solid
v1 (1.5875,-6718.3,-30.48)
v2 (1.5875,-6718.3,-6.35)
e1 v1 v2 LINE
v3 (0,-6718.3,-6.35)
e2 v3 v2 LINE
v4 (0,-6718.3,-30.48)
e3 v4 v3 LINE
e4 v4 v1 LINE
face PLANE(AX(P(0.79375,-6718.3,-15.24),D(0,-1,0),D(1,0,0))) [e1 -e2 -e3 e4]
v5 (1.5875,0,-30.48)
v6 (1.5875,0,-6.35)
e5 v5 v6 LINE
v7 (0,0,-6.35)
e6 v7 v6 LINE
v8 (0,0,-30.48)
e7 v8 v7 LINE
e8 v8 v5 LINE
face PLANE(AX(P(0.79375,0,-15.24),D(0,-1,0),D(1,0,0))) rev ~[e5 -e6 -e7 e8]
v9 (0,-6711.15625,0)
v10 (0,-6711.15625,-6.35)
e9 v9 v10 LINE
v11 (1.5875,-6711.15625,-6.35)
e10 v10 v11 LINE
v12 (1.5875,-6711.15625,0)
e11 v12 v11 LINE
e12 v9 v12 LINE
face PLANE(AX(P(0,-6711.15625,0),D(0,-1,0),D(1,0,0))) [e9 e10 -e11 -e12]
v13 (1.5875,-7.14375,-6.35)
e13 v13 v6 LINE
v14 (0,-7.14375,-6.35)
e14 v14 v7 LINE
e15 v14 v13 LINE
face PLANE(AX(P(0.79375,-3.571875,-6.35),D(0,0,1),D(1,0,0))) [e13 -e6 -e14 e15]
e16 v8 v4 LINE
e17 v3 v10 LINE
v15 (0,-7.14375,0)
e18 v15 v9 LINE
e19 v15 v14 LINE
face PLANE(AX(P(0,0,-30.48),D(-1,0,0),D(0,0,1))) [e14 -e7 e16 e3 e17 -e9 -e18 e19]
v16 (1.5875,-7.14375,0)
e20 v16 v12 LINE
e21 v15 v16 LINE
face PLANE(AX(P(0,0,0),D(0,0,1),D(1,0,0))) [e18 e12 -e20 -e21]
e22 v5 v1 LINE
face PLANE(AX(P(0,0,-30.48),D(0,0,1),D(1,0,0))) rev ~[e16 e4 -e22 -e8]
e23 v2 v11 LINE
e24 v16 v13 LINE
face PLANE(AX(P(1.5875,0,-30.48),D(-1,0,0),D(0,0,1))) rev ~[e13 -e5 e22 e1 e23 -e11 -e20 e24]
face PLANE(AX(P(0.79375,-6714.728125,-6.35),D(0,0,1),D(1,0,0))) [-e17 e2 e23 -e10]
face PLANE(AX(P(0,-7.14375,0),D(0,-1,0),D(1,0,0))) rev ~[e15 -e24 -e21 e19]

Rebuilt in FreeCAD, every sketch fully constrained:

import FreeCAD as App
import Part
import Sketcher

V = App.Vector
Q = App.Units.Quantity

doc = App.newDocument("Part")
body = doc.addObject("PartDesign::Body", "Body")

# Sketch on XZ plane
sketch1 = body.newObject("Sketcher::SketchObject", "Sketch")
sketch1.AttachmentSupport = (doc.getObject("XZ_Plane"), [""])
sketch1.MapMode = "FlatFace"
sketch1.addGeometry(Part.LineSegment(V(0, 0, 0), V(0, -30.48, 0)), False)
sketch1.addGeometry(Part.LineSegment(V(0, -30.48, 0), V(1.5875, -30.48, 0)), False)
sketch1.addGeometry(Part.LineSegment(V(1.5875, -30.48, 0), V(1.5875, 0, 0)), False)
sketch1.addGeometry(Part.LineSegment(V(1.5875, 0, 0), V(0, 0, 0)), False)
sketch1.addConstraint(Sketcher.Constraint("Coincident", 0, 2, 1, 1))
sketch1.addConstraint(Sketcher.Constraint("Coincident", 1, 2, 2, 1))
sketch1.addConstraint(Sketcher.Constraint("Coincident", 2, 2, 3, 1))
sketch1.addConstraint(Sketcher.Constraint("Coincident", 3, 2, 0, 1))
sketch1.addConstraint(Sketcher.Constraint("Vertical", 0))
sketch1.addConstraint(Sketcher.Constraint("Horizontal", 1))
sketch1.addConstraint(Sketcher.Constraint("Vertical", 2))
sketch1.addConstraint(Sketcher.Constraint("Horizontal", 3))
sketch1.addConstraint(Sketcher.Constraint("Coincident", 3, 2, -1, 1))
sketch1.addConstraint(Sketcher.Constraint("DistanceY", 0, 2, 0, 1, Q("1.2 in")))
sketch1.addConstraint(Sketcher.Constraint("DistanceX", 1, 1, 1, 2, Q("0.0625 in")))
pad1 = body.newObject("PartDesign::Pad", "Pad")
pad1.Profile = sketch1
pad1.Length = Q("264.5 in")

# Sketch on XY plane
sketch2 = body.newObject("Sketcher::SketchObject", "Sketch001")
sketch2.AttachmentSupport = (doc.getObject("XY_Plane"), [""])
sketch2.MapMode = "FlatFace"
sketch2.addGeometry(Part.LineSegment(V(0, -6711.15625, 0), V(0, -6718.3, 0)), False)
sketch2.addGeometry(Part.LineSegment(V(0, -6718.3, 0), V(1.5875, -6718.3, 0)), False)
sketch2.addGeometry(Part.LineSegment(V(1.5875, -6718.3, 0), V(1.5875, -6711.15625, 0)), False)
sketch2.addGeometry(Part.LineSegment(V(1.5875, -6711.15625, 0), V(0, -6711.15625, 0)), False)
sketch2.addGeometry(Part.LineSegment(V(0, 0, 0), V(0, -7.14375, 0)), False)
sketch2.addGeometry(Part.LineSegment(V(0, -7.14375, 0), V(1.5875, -7.14375, 0)), False)
sketch2.addGeometry(Part.LineSegment(V(1.5875, -7.14375, 0), V(1.5875, 0, 0)), False)
sketch2.addGeometry(Part.LineSegment(V(1.5875, 0, 0), V(0, 0, 0)), False)
sketch2.addConstraint(Sketcher.Constraint("Coincident", 0, 2, 1, 1))
sketch2.addConstraint(Sketcher.Constraint("Coincident", 1, 2, 2, 1))
sketch2.addConstraint(Sketcher.Constraint("Coincident", 2, 2, 3, 1))
sketch2.addConstraint(Sketcher.Constraint("Coincident", 3, 2, 0, 1))
sketch2.addConstraint(Sketcher.Constraint("Coincident", 4, 2, 5, 1))
sketch2.addConstraint(Sketcher.Constraint("Coincident", 5, 2, 6, 1))
sketch2.addConstraint(Sketcher.Constraint("Coincident", 6, 2, 7, 1))
sketch2.addConstraint(Sketcher.Constraint("Coincident", 7, 2, 4, 1))
sketch2.addConstraint(Sketcher.Constraint("Vertical", 0))
sketch2.addConstraint(Sketcher.Constraint("Horizontal", 1))
sketch2.addConstraint(Sketcher.Constraint("Vertical", 2))
sketch2.addConstraint(Sketcher.Constraint("Horizontal", 3))
sketch2.addConstraint(Sketcher.Constraint("Vertical", 4))
sketch2.addConstraint(Sketcher.Constraint("Horizontal", 5))
sketch2.addConstraint(Sketcher.Constraint("Vertical", 6))
sketch2.addConstraint(Sketcher.Constraint("Horizontal", 7))
sketch2.addConstraint(Sketcher.Constraint("Coincident", 7, 2, -1, 1))
sketch2.addConstraint(Sketcher.Constraint("PointOnObject", 0, 2, -2))
sketch2.addConstraint(Sketcher.Constraint("Vertical", 2, 2, 5, 2))
sketch2.addConstraint(Sketcher.Constraint("Equal", 2, 4))
sketch2.addConstraint(Sketcher.Constraint("DistanceY", 0, 2, -1, 1, Q("264.5 in")))
sketch2.addConstraint(Sketcher.Constraint("DistanceX", 1, 1, 1, 2, Q("0.0625 in")))
sketch2.addConstraint(Sketcher.Constraint("DistanceY", 0, 2, 0, 1, Q("0.28125 in")))
pocket1 = body.newObject("PartDesign::Pocket", "Pocket")
pocket1.Profile = sketch2
pocket1.Length = Q("0.25 in")

doc.recompute()
